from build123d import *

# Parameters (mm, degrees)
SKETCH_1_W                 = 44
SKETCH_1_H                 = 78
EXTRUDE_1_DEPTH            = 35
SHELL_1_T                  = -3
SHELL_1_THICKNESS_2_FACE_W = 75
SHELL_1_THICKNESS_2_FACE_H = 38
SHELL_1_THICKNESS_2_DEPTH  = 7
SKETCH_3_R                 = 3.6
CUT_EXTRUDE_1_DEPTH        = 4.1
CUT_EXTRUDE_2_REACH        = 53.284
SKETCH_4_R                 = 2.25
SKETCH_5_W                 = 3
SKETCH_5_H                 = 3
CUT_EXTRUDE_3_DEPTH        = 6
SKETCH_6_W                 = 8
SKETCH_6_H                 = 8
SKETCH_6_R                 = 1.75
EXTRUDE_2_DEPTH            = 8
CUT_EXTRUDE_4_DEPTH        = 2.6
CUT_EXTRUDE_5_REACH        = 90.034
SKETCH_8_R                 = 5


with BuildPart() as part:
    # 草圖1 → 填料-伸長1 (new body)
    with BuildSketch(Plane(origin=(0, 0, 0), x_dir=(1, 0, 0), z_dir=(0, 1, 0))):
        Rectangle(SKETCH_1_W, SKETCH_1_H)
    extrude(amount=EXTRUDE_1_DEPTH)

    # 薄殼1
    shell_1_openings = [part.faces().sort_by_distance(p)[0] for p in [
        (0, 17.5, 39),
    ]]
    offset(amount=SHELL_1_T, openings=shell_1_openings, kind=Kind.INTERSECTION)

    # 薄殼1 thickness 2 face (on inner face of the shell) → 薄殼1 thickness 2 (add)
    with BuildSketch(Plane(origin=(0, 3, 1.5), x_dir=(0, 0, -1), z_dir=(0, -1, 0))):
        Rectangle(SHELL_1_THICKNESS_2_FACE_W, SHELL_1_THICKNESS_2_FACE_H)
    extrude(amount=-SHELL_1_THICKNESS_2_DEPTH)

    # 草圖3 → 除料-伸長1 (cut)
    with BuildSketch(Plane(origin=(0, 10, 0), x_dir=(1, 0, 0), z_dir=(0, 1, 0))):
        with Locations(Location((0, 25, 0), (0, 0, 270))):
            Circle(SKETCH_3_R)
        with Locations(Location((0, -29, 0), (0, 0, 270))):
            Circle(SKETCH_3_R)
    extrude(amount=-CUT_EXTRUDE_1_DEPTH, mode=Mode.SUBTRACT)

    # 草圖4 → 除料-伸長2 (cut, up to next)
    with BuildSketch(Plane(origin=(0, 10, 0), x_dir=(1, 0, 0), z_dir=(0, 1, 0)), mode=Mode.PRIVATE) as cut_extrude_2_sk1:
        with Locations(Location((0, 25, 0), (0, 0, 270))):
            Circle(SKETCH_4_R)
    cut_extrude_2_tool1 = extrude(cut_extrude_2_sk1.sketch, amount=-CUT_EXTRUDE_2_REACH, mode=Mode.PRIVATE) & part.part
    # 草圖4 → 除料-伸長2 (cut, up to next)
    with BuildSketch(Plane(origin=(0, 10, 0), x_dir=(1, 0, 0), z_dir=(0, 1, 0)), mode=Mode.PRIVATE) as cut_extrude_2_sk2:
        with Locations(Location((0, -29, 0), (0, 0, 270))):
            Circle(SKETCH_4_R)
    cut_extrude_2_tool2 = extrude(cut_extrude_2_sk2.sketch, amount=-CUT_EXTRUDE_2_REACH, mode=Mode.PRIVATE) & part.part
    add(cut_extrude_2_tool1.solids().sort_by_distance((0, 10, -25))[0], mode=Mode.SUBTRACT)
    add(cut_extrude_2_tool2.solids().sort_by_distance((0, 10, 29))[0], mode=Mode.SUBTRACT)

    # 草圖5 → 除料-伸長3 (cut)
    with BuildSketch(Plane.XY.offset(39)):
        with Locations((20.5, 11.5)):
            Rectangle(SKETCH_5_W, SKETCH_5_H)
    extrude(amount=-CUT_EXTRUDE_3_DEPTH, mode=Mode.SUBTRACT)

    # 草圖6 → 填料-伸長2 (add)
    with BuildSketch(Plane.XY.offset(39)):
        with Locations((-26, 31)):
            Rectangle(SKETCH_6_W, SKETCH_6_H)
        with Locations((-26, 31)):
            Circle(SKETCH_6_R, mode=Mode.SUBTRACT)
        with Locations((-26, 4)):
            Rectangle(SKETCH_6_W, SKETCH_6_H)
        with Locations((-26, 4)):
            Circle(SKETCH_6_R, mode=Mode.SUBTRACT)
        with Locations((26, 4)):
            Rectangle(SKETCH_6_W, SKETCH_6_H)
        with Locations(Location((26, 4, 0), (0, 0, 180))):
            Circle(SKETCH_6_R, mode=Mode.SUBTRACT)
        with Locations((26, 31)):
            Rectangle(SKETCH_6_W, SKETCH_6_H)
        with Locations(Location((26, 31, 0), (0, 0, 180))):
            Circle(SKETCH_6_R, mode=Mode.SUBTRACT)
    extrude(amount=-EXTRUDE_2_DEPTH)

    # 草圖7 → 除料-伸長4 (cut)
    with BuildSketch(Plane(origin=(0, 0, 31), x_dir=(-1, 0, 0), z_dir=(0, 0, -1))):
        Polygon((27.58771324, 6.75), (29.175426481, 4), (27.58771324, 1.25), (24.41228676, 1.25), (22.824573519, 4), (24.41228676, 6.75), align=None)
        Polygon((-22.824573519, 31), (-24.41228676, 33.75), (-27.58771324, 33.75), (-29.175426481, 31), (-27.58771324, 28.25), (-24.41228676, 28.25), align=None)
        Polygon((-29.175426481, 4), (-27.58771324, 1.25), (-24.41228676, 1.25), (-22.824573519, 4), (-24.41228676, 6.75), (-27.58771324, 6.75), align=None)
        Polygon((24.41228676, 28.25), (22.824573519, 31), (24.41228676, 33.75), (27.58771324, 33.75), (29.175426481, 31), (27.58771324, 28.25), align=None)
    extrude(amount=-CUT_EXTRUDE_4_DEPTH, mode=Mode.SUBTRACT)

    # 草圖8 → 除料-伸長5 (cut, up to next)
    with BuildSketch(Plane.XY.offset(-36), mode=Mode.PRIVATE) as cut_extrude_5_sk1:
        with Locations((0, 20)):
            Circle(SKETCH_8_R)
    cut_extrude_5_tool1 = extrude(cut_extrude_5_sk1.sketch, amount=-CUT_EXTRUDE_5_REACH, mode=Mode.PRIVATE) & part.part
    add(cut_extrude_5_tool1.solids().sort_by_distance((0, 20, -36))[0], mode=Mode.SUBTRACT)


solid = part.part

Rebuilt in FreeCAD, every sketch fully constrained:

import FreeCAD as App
import Part
import Sketcher
Q = App.Units.Quantity


def faces_at(feature, points):
    """Names of the faces that lie closest to the given points."""
    faces = feature.Shape.Faces
    near = lambda p: min(range(len(faces)), key=lambda i: faces[i].distToShape(Part.Vertex(*p))[0])
    return sorted({f"Face{near(p) + 1}" for p in points})


def add_polygon(sketch, points):
    """Adds a closed chain of lines whose ends are joined by coincident constraints."""
    first, n = sketch.GeometryCount, len(points)
    for a, b in zip(points, points[1:] + points[:1]):
        sketch.addGeometry(Part.LineSegment(App.Vector(*a, 0), App.Vector(*b, 0)), False)
    for i in range(n):
        sketch.addConstraint(Sketcher.Constraint("Coincident", first + i, 2, first + (i + 1) % n, 1))

doc = App.newDocument("Part")
body = doc.addObject("PartDesign::Body", "Body")

sketch1 = doc.addObject("Sketcher::SketchObject", "Sketch")
body.addObject(sketch1)
sketch1.AttachmentSupport = (doc.XZ_Plane, [""])
sketch1.MapMode = "FlatFace"
add_polygon(sketch1, [(-22, -39), (-22, 39), (22, 39), (22, -39)])
sketch1.addConstraint([
    Sketcher.Constraint("Vertical", 0),
    Sketcher.Constraint("Horizontal", 1),
    Sketcher.Constraint("Vertical", 2),
    Sketcher.Constraint("Horizontal", 3),
    Sketcher.Constraint("Symmetric", 0, 2, 2, 2, -1, 1),
    Sketcher.Constraint("DistanceX", 1, 1, 1, 2, 44.0),
    Sketcher.Constraint("DistanceY", 0, 1, 0, 2, 78.0),
])
pad1 = doc.addObject("PartDesign::Pad", "Pad")
body.addObject(pad1)
pad1.Profile = sketch1
pad1.Length = 35
pad1.Reversed = True
doc.recompute()

thickness = doc.addObject("PartDesign::Thickness", "Thickness")
body.addObject(thickness)
thickness.Base = (pad1, faces_at(pad1, [(0, 17.5, 39)]))
thickness.Value = 3
thickness.Reversed = True
thickness.Join = "Intersection"

sketch2 = doc.addObject("Sketcher::SketchObject", "Sketch001")
body.addObject(sketch2)
sketch2.AttachmentSupport = (doc.XZ_Plane, [""])
sketch2.MapMode = "FlatFace"
sketch2.AttachmentOffset = App.Placement(App.Vector(0, 0, -3), App.Rotation())
add_polygon(sketch2, [(19, 39), (-19, 39), (-19, -36), (19, -36)])
sketch2.addConstraint([
    Sketcher.Constraint("Horizontal", 0),
    Sketcher.Constraint("Vertical", 1),
    Sketcher.Constraint("Horizontal", 2),
    Sketcher.Constraint("Vertical", 3),
    Sketcher.Constraint("DistanceX", 0, 2, 0, 1, 38.0),
    Sketcher.Constraint("DistanceY", 1, 2, 1, 1, 75.0),
    Sketcher.Constraint("DistanceX", 0, 2, -1, 1, 19.0),
    Sketcher.Constraint("DistanceY", -1, 1, 0, 2, 39.0),
])
pad2 = doc.addObject("PartDesign::Pad", "Pad001")
body.addObject(pad2)
pad2.Profile = sketch2
pad2.Length = 7
pad2.Reversed = True

sketch3 = doc.addObject("Sketcher::SketchObject", "Sketch002")
body.addObject(sketch3)
sketch3.AttachmentSupport = (doc.XZ_Plane, [""])
sketch3.MapMode = "FlatFace"
sketch3.AttachmentOffset = App.Placement(App.Vector(0, 0, -10), App.Rotation())
sketch3.addGeometry([
    Part.Circle(App.Vector(0, -25, 0), App.Vector(0, 0, 1), 3.6),
    Part.Circle(App.Vector(0, 29, 0), App.Vector(0, 0, 1), 3.6),
], False)
sketch3.addConstraint([
    Sketcher.Constraint("Equal", 0, 1),
    Sketcher.Constraint("PointOnObject", 0, 3, -2),
    Sketcher.Constraint("PointOnObject", 1, 3, -2),
    Sketcher.Constraint("Diameter", 0, 7.2),
    Sketcher.Constraint("DistanceY", 0, 3, -1, 1, 25.0),
    Sketcher.Constraint("DistanceY", -1, 1, 1, 3, 29.0),
])
pocket1 = doc.addObject("PartDesign::Pocket", "Pocket")
body.addObject(pocket1)
pocket1.Profile = sketch3
pocket1.Length = 4.1
pocket1.Reversed = True

sketch4 = doc.addObject("Sketcher::SketchObject", "Sketch003")
body.addObject(sketch4)
sketch4.AttachmentSupport = (doc.XZ_Plane, [""])
sketch4.MapMode = "FlatFace"
sketch4.AttachmentOffset = App.Placement(App.Vector(0, 0, -10), App.Rotation())
sketch4.addGeometry(Part.Circle(App.Vector(0, -25, 0), App.Vector(0, 0, 1), 2.2), False)
sketch4.addConstraint([
    Sketcher.Constraint("PointOnObject", 0, 3, -2),
    Sketcher.Constraint("Diameter", 0, 4.5),
    Sketcher.Constraint("DistanceY", 0, 3, -1, 1, 25.0),
])
pocket2 = doc.addObject("PartDesign::Pocket", "Pocket001")
body.addObject(pocket2)
pocket2.Profile = sketch4
pocket2.Length = 10
pocket2.Reversed = True

sketch5 = doc.addObject("Sketcher::SketchObject", "Sketch004")
body.addObject(sketch5)
sketch5.AttachmentSupport = (doc.XZ_Plane, [""])
sketch5.MapMode = "FlatFace"
sketch5.AttachmentOffset = App.Placement(App.Vector(0, 0, -10), App.Rotation())
sketch5.addGeometry(Part.Circle(App.Vector(0, 29, 0), App.Vector(0, 0, 1), 2.2), False)
sketch5.addConstraint([
    Sketcher.Constraint("PointOnObject", 0, 3, -2),
    Sketcher.Constraint("Diameter", 0, 4.5),
    Sketcher.Constraint("DistanceY", -1, 1, 0, 3, 29.0),
])
pocket3 = doc.addObject("PartDesign::Pocket", "Pocket002")
body.addObject(pocket3)
pocket3.Profile = sketch5
pocket3.Length = 10
pocket3.Reversed = True

sketch6 = doc.addObject("Sketcher::SketchObject", "Sketch005")
body.addObject(sketch6)
sketch6.AttachmentSupport = (doc.XY_Plane, [""])
sketch6.MapMode = "FlatFace"
sketch6.AttachmentOffset = App.Placement(App.Vector(0, 0, 39), App.Rotation())
add_polygon(sketch6, [(19, 13), (19, 10), (22, 10), (22, 13)])
sketch6.addConstraint([
    Sketcher.Constraint("Vertical", 0),
    Sketcher.Constraint("Horizontal", 1),
    Sketcher.Constraint("Vertical", 2),
    Sketcher.Constraint("Horizontal", 3),
    Sketcher.Constraint("Equal", 3, 0),
    Sketcher.Constraint("DistanceX", 1, 1, 1, 2, 3.0),
    Sketcher.Constraint("DistanceX", -1, 1, 0, 2, 19.0),
    Sketcher.Constraint("DistanceY", -1, 1, 0, 2, 10.0),
])
pocket4 = doc.addObject("PartDesign::Pocket", "Pocket003")
body.addObject(pocket4)
pocket4.Profile = sketch6
pocket4.Length = 6

sketch7 = doc.addObject("Sketcher::SketchObject", "Sketch006")
body.addObject(sketch7)
sketch7.AttachmentSupport = (doc.XY_Plane, [""])
sketch7.MapMode = "FlatFace"
sketch7.AttachmentOffset = App.Placement(App.Vector(0, 0, 39), App.Rotation())
add_polygon(sketch7, [(-30, 35), (-30, 27), (-22, 27), (-22, 35)])
sketch7.addGeometry(Part.Circle(App.Vector(-26, 31, 0), App.Vector(0, 0, 1), 1.8), False)
add_polygon(sketch7, [(-30, 8), (-30, 0), (-22, 0), (-22, 8)])
sketch7.addGeometry(Part.Circle(App.Vector(-26, 4, 0), App.Vector(0, 0, 1), 1.8), False)
add_polygon(sketch7, [(22, 8), (22, 0), (30, 0), (30, 8)])
sketch7.addGeometry(Part.Circle(App.Vector(26, 4, 0), App.Vector(0, 0, 1), 1.8), False)
add_polygon(sketch7, [(22, 35), (22, 27), (30, 27), (30, 35)])
sketch7.addGeometry(Part.Circle(App.Vector(26, 31, 0), App.Vector(0, 0, 1), 1.8), False)
sketch7.addConstraint([
    Sketcher.Constraint("Vertical", 0),
    Sketcher.Constraint("Horizontal", 1),
    Sketcher.Constraint("Vertical", 2),
    Sketcher.Constraint("Horizontal", 3),
    Sketcher.Constraint("Vertical", 5),
    Sketcher.Constraint("Horizontal", 6),
    Sketcher.Constraint("Vertical", 7),
    Sketcher.Constraint("Horizontal", 8),
    Sketcher.Constraint("Vertical", 10),
    Sketcher.Constraint("Horizontal", 11),
    Sketcher.Constraint("Vertical", 12),
    Sketcher.Constraint("Horizontal", 13),
    Sketcher.Constraint("Vertical", 15),
    Sketcher.Constraint("Horizontal", 16),
    Sketcher.Constraint("Vertical", 17),
    Sketcher.Constraint("Horizontal", 18),
    Sketcher.Constraint("Equal", 4, 9),
    Sketcher.Constraint("Equal", 9, 14),
    Sketcher.Constraint("Equal", 14, 19),
    Sketcher.Constraint("Symmetric", 6, 2, 10, 2, -1, 1),
    Sketcher.Constraint("Symmetric", 9, 3, 14, 3, -2),
    Sketcher.Constraint("Symmetric", 4, 3, 19, 3, -2),
    Sketcher.Constraint("Symmetric", 5, 2, 11, 2, -2),
    Sketcher.Constraint("Symmetric", 1, 2, 15, 2, -2),
    Sketcher.Constraint("Symmetric", 3, 2, 17, 2, -2),
    Sketcher.Constraint("Horizontal", 8, 2, 12, 2),
    Sketcher.Constraint("Vertical", 4, 3, 9, 3),
    Sketcher.Constraint("Vertical", 3, 2, 5, 2),
    Sketcher.Constraint("Vertical", 2, 2, 6, 2),
    Sketcher.Constraint("Equal", 18, 0),
    Sketcher.Constraint("Equal", 2, 5),
    Sketcher.Constraint("Diameter", 4, 3.5),
    Sketcher.Constraint("DistanceX", 1, 1, 1, 2, 8.0),
    Sketcher.Constraint("DistanceX", 4, 3, -1, 1, 26.0),
    Sketcher.Constraint("DistanceY", -1, 1, 4, 3, 31.0),
    Sketcher.Constraint("DistanceY", -1, 1, 9, 3, 4.0),
    Sketcher.Constraint("DistanceX", 0, 2, -1, 1, 30.0),
    Sketcher.Constraint("DistanceY", -1, 1, 0, 2, 27.0),
])
pad3 = doc.addObject("PartDesign::Pad", "Pad002")
body.addObject(pad3)
pad3.Profile = sketch7
pad3.Length = 8
pad3.Reversed = True

sketch8 = doc.addObject("Sketcher::SketchObject", "Sketch007")
body.addObject(sketch8)
sketch8.AttachmentSupport = (doc.XY_Plane, [""])
sketch8.MapMode = "FlatFace"
sketch8.AttachmentOffset = App.Placement(App.Vector(0, 0, 31), App.Rotation())
add_polygon(sketch8, [(-29.2, 4), (-27.6, 6.8), (-24.4, 6.8), (-22.8, 4), (-24.4, 1.2), (-27.6, 1.2)])
add_polygon(sketch8, [(22.8, 31), (24.4, 33.8), (27.6, 33.8), (29.2, 31), (27.6, 28.2), (24.4, 28.2)])
add_polygon(sketch8, [(29.2, 4), (27.6, 1.2), (24.4, 1.2), (22.8, 4), (24.4, 6.8), (27.6, 6.8)])
add_polygon(sketch8, [(-22.8, 31), (-24.4, 28.2), (-27.6, 28.2), (-29.2, 31), (-27.6, 33.8), (-24.4, 33.8)])
sketch8.addConstraint([
    Sketcher.Constraint("Horizontal", 1),
    Sketcher.Constraint("Horizontal", 4),
    Sketcher.Constraint("Horizontal", 7),
    Sketcher.Constraint("Horizontal", 10),
    Sketcher.Constraint("Horizontal", 13),
    Sketcher.Constraint("Horizontal", 16),
    Sketcher.Constraint("Horizontal", 19),
    Sketcher.Constraint("Horizontal", 22),
    Sketcher.Constraint("Symmetric", 4, 2, 12, 2, -2),
    Sketcher.Constraint("Symmetric", 2, 2, 14, 2, -2),
    Sketcher.Constraint("Symmetric", 1, 2, 15, 2, -2),
    Sketcher.Constraint("Symmetric", 5, 2, 17, 2, -2),
    Sketcher.Constraint("Symmetric", 10, 2, 18, 2, -2),
    Sketcher.Constraint("Symmetric", 8, 2, 20, 2, -2),
    Sketcher.Constraint("Symmetric", 7, 2, 21, 2, -2),
    Sketcher.Constraint("Symmetric", 11, 2, 23, 2, -2),
    Sketcher.Constraint("Parallel", 0, 3),
    Sketcher.Constraint("Parallel", 2, 5),
    Sketcher.Constraint("Parallel", 3, 6),
    Sketcher.Constraint("Parallel", 5, 8),
    Sketcher.Constraint("Parallel", 6, 9),
    Sketcher.Constraint("Parallel", 8, 11),
    Sketcher.Constraint("Parallel", 9, 12),
    Sketcher.Constraint("Parallel", 11, 14),
    Sketcher.Constraint("Parallel", 14, 17),
    Sketcher.Constraint("Parallel", 17, 20),
    Sketcher.Constraint("Parallel", 20, 23),
    Sketcher.Constraint("Horizontal", 2, 2, 5, 2),
    Sketcher.Constraint("Horizontal", 8, 2, 11, 2),
    Sketcher.Constraint("Vertical", 1, 2, 3, 2),
    Sketcher.Constraint("Vertical", 7, 2, 9, 2),
    Sketcher.Constraint("Vertical", 9, 2, 12, 2),
    Sketcher.Constraint("Vertical", 10, 2, 13, 2),
    Sketcher.Constraint("Vertical", 11, 2, 14, 2),
    Sketcher.Constraint("Angle", 0, Q("60 deg")),
    Sketcher.Constraint("DistanceY", -1, 1, 2, 2, 4.0),
    Sketcher.Constraint("DistanceY", -1, 1, 8, 2, 31.0),
    Sketcher.Constraint("DistanceX", 0, 2, 6, 2, 52.0),
    Sketcher.Constraint("DistanceY", 3, 2, 1, 2, 5.5),
    Sketcher.Constraint("DistanceX", 1, 1, 1, 2, 3.175426),
])
pocket5 = doc.addObject("PartDesign::Pocket", "Pocket004")
body.addObject(pocket5)
pocket5.Profile = sketch8
pocket5.Length = 2.6
pocket5.Reversed = True

sketch9 = doc.addObject("Sketcher::SketchObject", "Sketch008")
body.addObject(sketch9)
sketch9.AttachmentSupport = (doc.XY_Plane, [""])
sketch9.MapMode = "FlatFace"
sketch9.AttachmentOffset = App.Placement(App.Vector(0, 0, -36), App.Rotation())
sketch9.addGeometry(Part.Circle(App.Vector(0, 20, 0), App.Vector(0, 0, 1), 5), False)
sketch9.addConstraint([
    Sketcher.Constraint("PointOnObject", 0, 3, -2),
    Sketcher.Constraint("Diameter", 0, 10.0),
    Sketcher.Constraint("DistanceY", -1, 1, 0, 3, 20.0),
])
pocket6 = doc.addObject("PartDesign::Pocket", "Pocket005")
body.addObject(pocket6)
pocket6.Profile = sketch9
pocket6.Type = "UpToFirst"

doc.recompute()
